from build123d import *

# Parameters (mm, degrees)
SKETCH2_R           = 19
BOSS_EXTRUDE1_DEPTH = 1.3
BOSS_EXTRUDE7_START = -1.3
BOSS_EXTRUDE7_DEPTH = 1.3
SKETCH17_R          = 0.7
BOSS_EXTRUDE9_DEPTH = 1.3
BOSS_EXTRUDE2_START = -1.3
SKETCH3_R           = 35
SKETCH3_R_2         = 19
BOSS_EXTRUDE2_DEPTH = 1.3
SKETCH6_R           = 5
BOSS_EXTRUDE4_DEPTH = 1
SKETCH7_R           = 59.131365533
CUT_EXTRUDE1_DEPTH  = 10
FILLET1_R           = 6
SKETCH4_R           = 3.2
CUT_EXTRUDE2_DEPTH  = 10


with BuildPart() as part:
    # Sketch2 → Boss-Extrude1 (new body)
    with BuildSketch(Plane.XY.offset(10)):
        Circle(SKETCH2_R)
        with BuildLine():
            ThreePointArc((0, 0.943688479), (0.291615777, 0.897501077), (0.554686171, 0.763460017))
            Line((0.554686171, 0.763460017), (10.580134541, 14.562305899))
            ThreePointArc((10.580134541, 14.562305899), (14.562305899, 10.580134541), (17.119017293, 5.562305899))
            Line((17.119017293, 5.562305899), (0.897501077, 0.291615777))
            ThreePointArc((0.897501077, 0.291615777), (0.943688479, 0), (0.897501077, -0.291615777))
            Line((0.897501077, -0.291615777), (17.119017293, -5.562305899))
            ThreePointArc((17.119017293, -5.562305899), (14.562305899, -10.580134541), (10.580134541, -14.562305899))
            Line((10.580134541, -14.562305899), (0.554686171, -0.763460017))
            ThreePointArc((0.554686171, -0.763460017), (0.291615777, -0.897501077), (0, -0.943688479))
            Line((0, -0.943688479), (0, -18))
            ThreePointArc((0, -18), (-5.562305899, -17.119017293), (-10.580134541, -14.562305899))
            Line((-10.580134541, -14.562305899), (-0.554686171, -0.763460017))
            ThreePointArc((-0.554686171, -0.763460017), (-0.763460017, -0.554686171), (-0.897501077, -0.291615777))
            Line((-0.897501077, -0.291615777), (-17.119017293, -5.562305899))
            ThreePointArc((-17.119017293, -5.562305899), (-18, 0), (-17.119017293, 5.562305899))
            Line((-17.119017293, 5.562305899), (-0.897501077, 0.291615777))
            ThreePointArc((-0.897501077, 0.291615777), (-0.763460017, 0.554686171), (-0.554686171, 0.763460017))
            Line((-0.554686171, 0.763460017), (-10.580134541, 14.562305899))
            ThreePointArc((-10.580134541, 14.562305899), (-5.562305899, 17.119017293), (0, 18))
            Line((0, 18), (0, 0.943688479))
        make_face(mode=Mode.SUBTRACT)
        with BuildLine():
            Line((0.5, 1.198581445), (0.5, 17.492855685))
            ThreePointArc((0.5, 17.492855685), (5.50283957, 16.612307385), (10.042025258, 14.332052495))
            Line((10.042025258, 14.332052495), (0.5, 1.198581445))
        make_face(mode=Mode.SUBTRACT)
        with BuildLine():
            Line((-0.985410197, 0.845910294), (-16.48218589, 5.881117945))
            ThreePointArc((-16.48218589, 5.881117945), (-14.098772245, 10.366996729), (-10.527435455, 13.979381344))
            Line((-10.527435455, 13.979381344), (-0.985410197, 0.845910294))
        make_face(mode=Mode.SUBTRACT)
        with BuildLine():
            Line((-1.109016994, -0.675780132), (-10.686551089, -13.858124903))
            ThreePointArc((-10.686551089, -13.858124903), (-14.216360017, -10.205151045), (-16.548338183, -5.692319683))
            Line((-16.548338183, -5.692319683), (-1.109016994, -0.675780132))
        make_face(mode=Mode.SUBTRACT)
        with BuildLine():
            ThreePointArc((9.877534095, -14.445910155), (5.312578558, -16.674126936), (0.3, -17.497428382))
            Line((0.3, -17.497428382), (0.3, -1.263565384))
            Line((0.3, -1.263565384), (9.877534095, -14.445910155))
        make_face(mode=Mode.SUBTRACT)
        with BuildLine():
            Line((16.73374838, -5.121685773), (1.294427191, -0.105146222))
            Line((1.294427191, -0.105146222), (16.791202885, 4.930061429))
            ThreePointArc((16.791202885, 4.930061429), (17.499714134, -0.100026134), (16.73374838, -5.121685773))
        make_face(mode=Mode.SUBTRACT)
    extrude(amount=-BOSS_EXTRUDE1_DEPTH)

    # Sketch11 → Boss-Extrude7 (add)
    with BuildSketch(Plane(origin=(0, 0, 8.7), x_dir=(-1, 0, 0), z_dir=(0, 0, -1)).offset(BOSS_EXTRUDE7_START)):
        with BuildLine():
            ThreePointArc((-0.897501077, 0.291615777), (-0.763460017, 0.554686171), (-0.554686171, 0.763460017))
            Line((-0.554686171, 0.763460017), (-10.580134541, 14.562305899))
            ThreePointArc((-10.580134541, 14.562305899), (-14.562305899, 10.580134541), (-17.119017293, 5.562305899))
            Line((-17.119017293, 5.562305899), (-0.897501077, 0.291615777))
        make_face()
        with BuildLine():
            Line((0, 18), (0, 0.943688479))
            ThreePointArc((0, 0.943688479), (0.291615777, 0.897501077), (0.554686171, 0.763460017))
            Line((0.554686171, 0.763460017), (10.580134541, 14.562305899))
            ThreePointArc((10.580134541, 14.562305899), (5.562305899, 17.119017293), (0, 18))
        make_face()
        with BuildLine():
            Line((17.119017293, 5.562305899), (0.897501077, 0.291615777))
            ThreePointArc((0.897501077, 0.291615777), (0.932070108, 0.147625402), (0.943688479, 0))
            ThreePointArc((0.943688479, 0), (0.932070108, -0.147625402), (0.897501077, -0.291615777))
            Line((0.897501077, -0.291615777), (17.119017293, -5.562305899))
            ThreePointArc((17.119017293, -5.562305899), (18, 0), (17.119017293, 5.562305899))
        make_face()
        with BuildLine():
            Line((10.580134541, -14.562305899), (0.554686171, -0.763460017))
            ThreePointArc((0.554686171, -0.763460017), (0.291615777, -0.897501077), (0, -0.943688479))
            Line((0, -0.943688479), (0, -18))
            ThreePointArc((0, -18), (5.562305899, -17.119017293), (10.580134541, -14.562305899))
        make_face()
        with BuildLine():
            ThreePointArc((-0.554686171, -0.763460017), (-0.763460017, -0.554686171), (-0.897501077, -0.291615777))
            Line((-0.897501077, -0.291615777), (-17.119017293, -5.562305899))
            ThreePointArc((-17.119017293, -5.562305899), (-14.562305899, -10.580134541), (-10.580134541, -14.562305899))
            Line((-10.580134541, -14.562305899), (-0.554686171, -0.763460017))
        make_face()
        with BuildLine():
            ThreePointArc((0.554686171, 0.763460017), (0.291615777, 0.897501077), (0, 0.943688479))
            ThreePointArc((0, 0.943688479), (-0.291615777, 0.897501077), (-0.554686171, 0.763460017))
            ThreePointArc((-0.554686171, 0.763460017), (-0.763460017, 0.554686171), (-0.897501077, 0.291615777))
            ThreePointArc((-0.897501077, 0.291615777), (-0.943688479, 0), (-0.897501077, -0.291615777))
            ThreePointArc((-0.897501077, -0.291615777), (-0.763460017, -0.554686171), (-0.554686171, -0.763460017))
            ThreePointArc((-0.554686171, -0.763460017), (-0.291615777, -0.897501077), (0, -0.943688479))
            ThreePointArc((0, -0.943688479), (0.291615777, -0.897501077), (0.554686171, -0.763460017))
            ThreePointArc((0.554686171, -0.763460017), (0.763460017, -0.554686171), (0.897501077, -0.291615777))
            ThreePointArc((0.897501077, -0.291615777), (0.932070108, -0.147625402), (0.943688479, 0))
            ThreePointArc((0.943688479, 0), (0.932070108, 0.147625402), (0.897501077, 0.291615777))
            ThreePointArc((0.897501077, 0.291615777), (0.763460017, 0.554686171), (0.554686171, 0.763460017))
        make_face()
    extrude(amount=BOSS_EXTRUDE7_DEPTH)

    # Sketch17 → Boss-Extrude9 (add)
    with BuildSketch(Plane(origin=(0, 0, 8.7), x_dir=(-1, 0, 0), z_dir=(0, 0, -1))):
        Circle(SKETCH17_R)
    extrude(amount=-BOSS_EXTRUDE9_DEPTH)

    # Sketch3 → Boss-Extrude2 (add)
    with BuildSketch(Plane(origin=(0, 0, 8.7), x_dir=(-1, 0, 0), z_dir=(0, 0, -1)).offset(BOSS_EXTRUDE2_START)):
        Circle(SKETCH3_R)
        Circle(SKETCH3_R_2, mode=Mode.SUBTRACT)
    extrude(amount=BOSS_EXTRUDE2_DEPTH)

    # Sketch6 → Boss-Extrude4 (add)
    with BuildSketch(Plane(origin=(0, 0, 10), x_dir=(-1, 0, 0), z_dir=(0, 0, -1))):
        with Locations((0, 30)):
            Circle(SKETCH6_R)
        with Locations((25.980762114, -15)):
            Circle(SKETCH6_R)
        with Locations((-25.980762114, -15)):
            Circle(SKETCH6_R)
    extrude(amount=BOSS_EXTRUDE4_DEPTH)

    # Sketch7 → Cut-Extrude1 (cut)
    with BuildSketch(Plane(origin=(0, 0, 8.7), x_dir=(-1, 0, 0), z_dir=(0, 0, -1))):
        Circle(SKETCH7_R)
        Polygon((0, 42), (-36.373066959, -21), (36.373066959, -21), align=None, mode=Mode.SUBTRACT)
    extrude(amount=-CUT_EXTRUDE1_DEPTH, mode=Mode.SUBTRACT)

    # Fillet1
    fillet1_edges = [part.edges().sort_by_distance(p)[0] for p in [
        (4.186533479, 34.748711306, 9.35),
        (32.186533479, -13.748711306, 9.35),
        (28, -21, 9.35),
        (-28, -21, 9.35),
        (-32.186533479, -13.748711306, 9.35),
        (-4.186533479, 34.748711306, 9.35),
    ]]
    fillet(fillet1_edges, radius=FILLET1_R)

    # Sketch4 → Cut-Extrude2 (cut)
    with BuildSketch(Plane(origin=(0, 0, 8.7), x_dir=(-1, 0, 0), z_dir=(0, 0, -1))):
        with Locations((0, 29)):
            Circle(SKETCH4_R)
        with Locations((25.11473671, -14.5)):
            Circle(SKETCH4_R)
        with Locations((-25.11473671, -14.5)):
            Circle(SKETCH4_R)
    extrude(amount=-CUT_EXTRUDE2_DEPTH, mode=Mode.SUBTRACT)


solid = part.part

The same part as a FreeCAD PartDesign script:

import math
import FreeCAD as App
import Part
import Sketcher
from FreeCAD import Vector
Q = App.Units.Quantity


def edges_at(feature, points):
    """Names of the edges that pass closest to the given points."""
    edges = feature.Shape.Edges
    near = lambda p: min(range(len(edges)), key=lambda i: edges[i].distToShape(Part.Vertex(*p))[0])
    return sorted({f"Edge{near(p) + 1}" for p in points})

doc = App.newDocument("Part")
body = doc.addObject("PartDesign::Body", "Body")

# Sketch on XY plane
sketch1 = doc.addObject("Sketcher::SketchObject", "Sketch")
body.addObject(sketch1)
sketch1.AttachmentSupport = (doc.XY_Plane, [""])
sketch1.MapMode = "FlatFace"
sketch1.AttachmentOffset = App.Placement(Vector(0, 0, 10), App.Rotation())
sketch1.addGeometry([
    Part.Circle(Vector(0, 0, 0), Vector(0, 0, 1), 19),  # 0
    Part.LineSegment(Vector(-16.5, -5.7, 0), Vector(-1.1, -0.7, 0)),  # 1
    Part.LineSegment(Vector(-1.1, -0.7, 0), Vector(-10.7, -13.9, 0)),  # 2
    Part.ArcOfCircle(Part.Circle(Vector(0, 0, 0), Vector(0, 0, 1), 17.5), math.radians(-161), math.radians(-128)),  # 3
    Part.LineSegment(Vector(0.3, -1.3, 0), Vector(9.9, -14.4, 0)),  # 4
    Part.ArcOfCircle(Part.Circle(Vector(0, 0, 0), Vector(0, 0, 1), 17.5), math.radians(-89), math.radians(-56)),  # 5
    Part.LineSegment(Vector(0.3, -17.5, 0), Vector(0.3, -1.3, 0)),  # 6
    Part.ArcOfCircle(Part.Circle(Vector(0, 0, 0), Vector(0, 0, 1), 17.5), math.radians(-17), math.radians(16)),  # 7
    Part.LineSegment(Vector(16.7, -5.1, 0), Vector(1.3, -0.1, 0)),  # 8
    Part.LineSegment(Vector(1.3, -0.1, 0), Vector(16.8, 4.9, 0)),  # 9
    Part.LineSegment(Vector(0, 18, 0), Vector(0, 0.9, 0)),  # 10
    Part.ArcOfCircle(Part.Circle(Vector(0, 0, 0), Vector(0, 0, 1), 0.9), math.radians(54), math.radians(90)),  # 11
    Part.LineSegment(Vector(0.6, 0.8, 0), Vector(10.6, 14.6, 0)),  # 12
    Part.ArcOfCircle(Part.Circle(Vector(0, 0, 0), Vector(0, 0, 1), 18), math.radians(18), math.radians(54)),  # 13
    Part.LineSegment(Vector(17.1, 5.6, 0), Vector(0.9, 0.3, 0)),  # 14
    Part.ArcOfCircle(Part.Circle(Vector(0, 0, 0), Vector(0, 0, 1), 0.9), math.radians(-18), math.radians(18)),  # 15
    Part.LineSegment(Vector(0.9, -0.3, 0), Vector(17.1, -5.6, 0)),  # 16
    Part.ArcOfCircle(Part.Circle(Vector(0, 0, 0), Vector(0, 0, 1), 18), math.radians(-54), math.radians(-18)),  # 17
    Part.LineSegment(Vector(10.6, -14.6, 0), Vector(0.6, -0.8, 0)),  # 18
    Part.ArcOfCircle(Part.Circle(Vector(0, 0, 0), Vector(0, 0, 1), 0.9), math.radians(-90), math.radians(-54)),  # 19
    Part.LineSegment(Vector(0, -0.9, 0), Vector(0, -18, 0)),  # 20
    Part.ArcOfCircle(Part.Circle(Vector(0, 0, 0), Vector(0, 0, 1), 18), math.radians(-126), math.radians(-90)),  # 21
    Part.LineSegment(Vector(-10.6, -14.6, 0), Vector(-0.6, -0.8, 0)),  # 22
    Part.ArcOfCircle(Part.Circle(Vector(0, 0, 0), Vector(0, 0, 1), 0.9), math.radians(-162), math.radians(-126)),  # 23
    Part.LineSegment(Vector(-0.9, -0.3, 0), Vector(-17.1, -5.6, 0)),  # 24
    Part.ArcOfCircle(Part.Circle(Vector(0, 0, 0), Vector(0, 0, 1), 18), math.radians(162), math.radians(198)),  # 25
    Part.LineSegment(Vector(-17.1, 5.6, 0), Vector(-0.9, 0.3, 0)),  # 26
    Part.ArcOfCircle(Part.Circle(Vector(0, 0, 0), Vector(0, 0, 1), 0.9), math.radians(126), math.radians(162)),  # 27
    Part.LineSegment(Vector(-0.6, 0.8, 0), Vector(-10.6, 14.6, 0)),  # 28
    Part.ArcOfCircle(Part.Circle(Vector(0, 0, 0), Vector(0, 0, 1), 18), math.radians(90), math.radians(126)),  # 29
    Part.LineSegment(Vector(-10.5, 14, 0), Vector(-1, 0.8, 0)),  # 30
    Part.LineSegment(Vector(-1, 0.8, 0), Vector(-16.5, 5.9, 0)),  # 31
    Part.ArcOfCircle(Part.Circle(Vector(0, 0, 0), Vector(0, 0, 1), 17.5), math.radians(127), math.radians(160)),  # 32
    Part.LineSegment(Vector(10, 14.3, 0), Vector(0.5, 1.2, 0)),  # 33
    Part.LineSegment(Vector(0.5, 1.2, 0), Vector(0.5, 17.5, 0)),  # 34
    Part.ArcOfCircle(Part.Circle(Vector(0, 0, 0), Vector(0, 0, 1), 17.5), math.radians(55), math.radians(88)),  # 35
], False)
sketch1.addConstraint([
    Sketcher.Constraint("Coincident", 1, 2, 2, 1),
    Sketcher.Constraint("Coincident", 2, 2, 3, 2),
    Sketcher.Constraint("Coincident", 3, 1, 1, 1),
    Sketcher.Constraint("Coincident", 4, 2, 5, 2),
    Sketcher.Constraint("Coincident", 5, 1, 6, 1),
    Sketcher.Constraint("Coincident", 6, 2, 4, 1),
    Sketcher.Constraint("Coincident", 7, 1, 8, 1),
    Sketcher.Constraint("Coincident", 8, 2, 9, 1),
    Sketcher.Constraint("Coincident", 9, 2, 7, 2),
    Sketcher.Constraint("Coincident", 10, 2, 11, 2),
    Sketcher.Constraint("Coincident", 11, 1, 12, 1),
    Sketcher.Constraint("Coincident", 12, 2, 13, 2),
    Sketcher.Constraint("Coincident", 13, 1, 14, 1),
    Sketcher.Constraint("Coincident", 14, 2, 15, 2),
    Sketcher.Constraint("Coincident", 15, 1, 16, 1),
    Sketcher.Constraint("Coincident", 16, 2, 17, 2),
    Sketcher.Constraint("Coincident", 17, 1, 18, 1),
    Sketcher.Constraint("Coincident", 18, 2, 19, 2),
    Sketcher.Constraint("Coincident", 19, 1, 20, 1),
    Sketcher.Constraint("Coincident", 20, 2, 21, 2),
    Sketcher.Constraint("Coincident", 21, 1, 22, 1),
    Sketcher.Constraint("Coincident", 22, 2, 23, 2),
    Sketcher.Constraint("Coincident", 23, 1, 24, 1),
    Sketcher.Constraint("Coincident", 24, 2, 25, 2),
    Sketcher.Constraint("Coincident", 25, 1, 26, 1),
    Sketcher.Constraint("Coincident", 26, 2, 27, 2),
    Sketcher.Constraint("Coincident", 27, 1, 28, 1),
    Sketcher.Constraint("Coincident", 28, 2, 29, 2),
    Sketcher.Constraint("Coincident", 29, 1, 10, 1),
    Sketcher.Constraint("Coincident", 30, 2, 31, 1),
    Sketcher.Constraint("Coincident", 31, 2, 32, 2),
    Sketcher.Constraint("Coincident", 32, 1, 30, 1),
    Sketcher.Constraint("Coincident", 33, 2, 34, 1),
    Sketcher.Constraint("Coincident", 34, 2, 35, 2),
    Sketcher.Constraint("Coincident", 35, 1, 33, 1),
    Sketcher.Constraint("Vertical", 6),
    Sketcher.Constraint("Vertical", 10),
    Sketcher.Constraint("Vertical", 20),
    Sketcher.Constraint("Vertical", 34),
    Sketcher.Constraint("Coincident", 0, 3, -1, 1),
    Sketcher.Constraint("Coincident", 3, 3, -1, 1),
    Sketcher.Constraint("Coincident", 5, 3, -1, 1),
    Sketcher.Constraint("Coincident", 7, 3, -1, 1),
    Sketcher.Constraint("Coincident", 11, 3, -1, 1),
    Sketcher.Constraint("Coincident", 13, 3, -1, 1),
    Sketcher.Constraint("Coincident", 15, 3, -1, 1),
    Sketcher.Constraint("Coincident", 17, 3, -1, 1),
    Sketcher.Constraint("Coincident", 19, 3, -1, 1),
    Sketcher.Constraint("Coincident", 21, 3, -1, 1),
    Sketcher.Constraint("Coincident", 23, 3, -1, 1),
    Sketcher.Constraint("Coincident", 25, 3, -1, 1),
    Sketcher.Constraint("Coincident", 27, 3, -1, 1),
    Sketcher.Constraint("Coincident", 29, 3, -1, 1),
    Sketcher.Constraint("Coincident", 32, 3, -1, 1),
    Sketcher.Constraint("Coincident", 35, 3, -1, 1),
    Sketcher.Constraint("Equal", 3, 5),
    Sketcher.Constraint("Equal", 5, 7),
    Sketcher.Constraint("Equal", 11, 15),
    Sketcher.Constraint("Equal", 13, 17),
    Sketcher.Constraint("Equal", 15, 19),
    Sketcher.Constraint("Equal", 17, 21),
    Sketcher.Constraint("Equal", 19, 23),
    Sketcher.Constraint("Equal", 21, 25),
    Sketcher.Constraint("Equal", 23, 27),
    Sketcher.Constraint("Equal", 25, 29),
    Sketcher.Constraint("Equal", 7, 32),
    Sketcher.Constraint("Equal", 32, 35),
    Sketcher.Constraint("PointOnObject", 10, 2, -2),
    Sketcher.Constraint("PointOnObject", 19, 1, -2),
    Sketcher.Constraint("Parallel", 1, 9),
    Sketcher.Constraint("Parallel", 2, 12),
    Sketcher.Constraint("Parallel", 9, 14),
    Sketcher.Constraint("Parallel", 8, 16),
    Sketcher.Constraint("Parallel", 4, 18),
    Sketcher.Constraint("Parallel", 12, 22),
    Sketcher.Constraint("Parallel", 14, 24),
    Sketcher.Constraint("Parallel", 16, 26),
    Sketcher.Constraint("Parallel", 18, 28),
    Sketcher.Constraint("Parallel", 28, 30),
    Sketcher.Constraint("Parallel", 26, 31),
    Sketcher.Constraint("Parallel", 22, 33),
    Sketcher.Constraint("Horizontal", 17, 1, 21, 1),
    Sketcher.Constraint("Horizontal", 18, 2, 22, 2),
    Sketcher.Constraint("Horizontal", 15, 1, 23, 1),
    Sketcher.Constraint("Horizontal", 16, 2, 24, 2),
    Sketcher.Constraint("Horizontal", 13, 1, 25, 1),
    Sketcher.Constraint("Horizontal", 11, 1, 27, 1),
    Sketcher.Constraint("Vertical", 14, 2, 15, 1),
    Sketcher.Constraint("Vertical", 12, 2, 17, 1),
    Sketcher.Constraint("Equal", 2, 4),
    Sketcher.Constraint("Equal", 1, 8),
    Sketcher.Constraint("Equal", 4, 9),
    Sketcher.Constraint("Equal", 8, 30),
    Sketcher.Constraint("Equal", 9, 31),
    Sketcher.Constraint("Equal", 30, 33),
    Sketcher.Constraint("Diameter", 0, 38.0),
    Sketcher.Constraint("Radius", 13, 18.0),
    Sketcher.Constraint("Radius", 3, 17.5),
    Sketcher.Constraint("Angle", 1, Q("18 deg")),
    Sketcher.Constraint("Angle", 2, Q("-126 deg")),
    Sketcher.Constraint("DistanceY", 13, 1, 12, 2, 9.0),
    Sketcher.Constraint("DistanceX", -1, 1, 5, 1, 0.3),
    Sketcher.Constraint("DistanceX", -1, 1, 33, 2, 0.5),
    Sketcher.Constraint("Radius", 11, 0.943688),
    Sketcher.Constraint("DistanceX", 24, 2, 1, 2, 16.01),
    Sketcher.Constraint("DistanceX", -1, 1, 14, 2, 0.897501),
    Sketcher.Constraint("DistanceX", 4, 2, 17, 1, 0.7026),
])
pad1 = doc.addObject("PartDesign::Pad", "Pad")
body.addObject(pad1)
pad1.Profile = sketch1
pad1.Length = 1.3
pad1.Reversed = True

# Sketch on XY plane
sketch2 = doc.addObject("Sketcher::SketchObject", "Sketch001")
body.addObject(sketch2)
sketch2.AttachmentSupport = (doc.XY_Plane, [""])
sketch2.MapMode = "FlatFace"
sketch2.AttachmentOffset = App.Placement(Vector(0, 0, 10), App.Rotation())
sketch2.addGeometry([
    Part.LineSegment(Vector(0.6, 0.8, 0), Vector(10.6, 14.6, 0)),  # 0
    Part.ArcOfCircle(Part.Circle(Vector(0, 0, 0), Vector(0, 0, 1), 18), math.radians(18), math.radians(54)),  # 1
    Part.LineSegment(Vector(17.1, 5.6, 0), Vector(0.9, 0.3, 0)),  # 2
    Part.ArcOfCircle(Part.Circle(Vector(0, 0, 0), Vector(0, 0, 1), 0.9), math.radians(-18), math.radians(18)),  # 3
    Part.LineSegment(Vector(0.9, -0.3, 0), Vector(17.1, -5.6, 0)),  # 4
    Part.ArcOfCircle(Part.Circle(Vector(0, 0, 0), Vector(0, 0, 1), 18), math.radians(-54), math.radians(-18)),  # 5
    Part.LineSegment(Vector(10.6, -14.6, 0), Vector(0.6, -0.8, 0)),  # 6
    Part.ArcOfCircle(Part.Circle(Vector(0, 0, 0), Vector(0, 0, 1), 0.9), math.radians(-90), math.radians(-54)),  # 7
    Part.LineSegment(Vector(0, -0.9, 0), Vector(0, -18, 0)),  # 8
    Part.ArcOfCircle(Part.Circle(Vector(0, 0, 0), Vector(0, 0, 1), 18), math.radians(-126), math.radians(-90)),  # 9
    Part.LineSegment(Vector(-10.6, -14.6, 0), Vector(-0.6, -0.8, 0)),  # 10
    Part.ArcOfCircle(Part.Circle(Vector(0, 0, 0), Vector(0, 0, 1), 0.9), math.radians(-162), math.radians(-126)),  # 11
    Part.LineSegment(Vector(-0.9, -0.3, 0), Vector(-17.1, -5.6, 0)),  # 12
    Part.ArcOfCircle(Part.Circle(Vector(0, 0, 0), Vector(0, 0, 1), 18), math.radians(162), math.radians(198)),  # 13
    Part.LineSegment(Vector(-17.1, 5.6, 0), Vector(-0.9, 0.3, 0)),  # 14
    Part.ArcOfCircle(Part.Circle(Vector(0, 0, 0), Vector(0, 0, 1), 0.9), math.radians(126), math.radians(162)),  # 15
    Part.LineSegment(Vector(-0.6, 0.8, 0), Vector(-10.6, 14.6, 0)),  # 16
    Part.ArcOfCircle(Part.Circle(Vector(0, 0, 0), Vector(0, 0, 1), 18), math.radians(90), math.radians(126)),  # 17
    Part.LineSegment(Vector(0, 18, 0), Vector(0, 0.9, 0)),  # 18
    Part.ArcOfCircle(Part.Circle(Vector(0, 0, 0), Vector(0, 0, 1), 0.9), math.radians(54), math.radians(90)),  # 19
], False)
sketch2.addConstraint([
    Sketcher.Constraint("Coincident", 0, 2, 1, 2),
    Sketcher.Constraint("Coincident", 1, 1, 2, 1),
    Sketcher.Constraint("Coincident", 2, 2, 3, 2),
    Sketcher.Constraint("Coincident", 3, 1, 4, 1),
    Sketcher.Constraint("Coincident", 4, 2, 5, 2),
    Sketcher.Constraint("Coincident", 5, 1, 6, 1),
    Sketcher.Constraint("Coincident", 6, 2, 7, 2),
    Sketcher.Constraint("Coincident", 7, 1, 8, 1),
    Sketcher.Constraint("Coincident", 8, 2, 9, 2),
    Sketcher.Constraint("Coincident", 9, 1, 10, 1),
    Sketcher.Constraint("Coincident", 10, 2, 11, 2),
    Sketcher.Constraint("Coincident", 11, 1, 12, 1),
    Sketcher.Constraint("Coincident", 12, 2, 13, 2),
    Sketcher.Constraint("Coincident", 13, 1, 14, 1),
    Sketcher.Constraint("Coincident", 14, 2, 15, 2),
    Sketcher.Constraint("Coincident", 15, 1, 16, 1),
    Sketcher.Constraint("Coincident", 16, 2, 17, 2),
    Sketcher.Constraint("Coincident", 17, 1, 18, 1),
    Sketcher.Constraint("Coincident", 18, 2, 19, 2),
    Sketcher.Constraint("Coincident", 19, 1, 0, 1),
    Sketcher.Constraint("Vertical", 8),
    Sketcher.Constraint("Vertical", 18),
    Sketcher.Constraint("Coincident", 1, 3, -1, 1),
    Sketcher.Constraint("Coincident", 3, 3, -1, 1),
    Sketcher.Constraint("Coincident", 5, 3, -1, 1),
    Sketcher.Constraint("Coincident", 7, 3, -1, 1),
    Sketcher.Constraint("Coincident", 9, 3, -1, 1),
    Sketcher.Constraint("Coincident", 11, 3, -1, 1),
    Sketcher.Constraint("Coincident", 13, 3, -1, 1),
    Sketcher.Constraint("Coincident", 15, 3, -1, 1),
    Sketcher.Constraint("Coincident", 17, 3, -1, 1),
    Sketcher.Constraint("Coincident", 19, 3, -1, 1),
    Sketcher.Constraint("Equal", 1, 5),
    Sketcher.Constraint("Equal", 3, 7),
    Sketcher.Constraint("Equal", 5, 9),
    Sketcher.Constraint("Equal", 7, 11),
    Sketcher.Constraint("Equal", 9, 13),
    Sketcher.Constraint("Equal", 11, 15),
    Sketcher.Constraint("Equal", 13, 17),
    Sketcher.Constraint("Equal", 15, 19),
    Sketcher.Constraint("PointOnObject", 7, 1, -2),
    Sketcher.Constraint("PointOnObject", 17, 1, -2),
    Sketcher.Constraint("Parallel", 0, 10),
    Sketcher.Constraint("Parallel", 2, 12),
    Sketcher.Constraint("Parallel", 4, 14),
    Sketcher.Constraint("Parallel", 6, 16),
    Sketcher.Constraint("Horizontal", 5, 1, 9, 1),
    Sketcher.Constraint("Horizontal", 6, 2, 10, 2),
    Sketcher.Constraint("Horizontal", 3, 1, 11, 1),
    Sketcher.Constraint("Horizontal", 4, 2, 12, 2),
    Sketcher.Constraint("Horizontal", 1, 1, 13, 1),
    Sketcher.Constraint("Horizontal", 0, 2, 16, 2),
    Sketcher.Constraint("Vertical", 2, 2, 3, 1),
    Sketcher.Constraint("Vertical", 0, 2, 5, 1),
    Sketcher.Constraint("Radius", 1, 18.0),
    Sketcher.Constraint("Angle", 0, Q("54 deg")),
    Sketcher.Constraint("Angle", 2, Q("-162 deg")),
    Sketcher.Constraint("DistanceY", 1, 1, 0, 2, 9.0),
    Sketcher.Constraint("Radius", 3, 0.943688),
    Sketcher.Constraint("DistanceX", -1, 1, 2, 2, 0.897501),
])
pad2 = doc.addObject("PartDesign::Pad", "Pad001")
body.addObject(pad2)
pad2.Profile = sketch2
pad2.Length = 1.3
pad2.Reversed = True

# Sketch on XY plane
sketch3 = doc.addObject("Sketcher::SketchObject", "Sketch002")
body.addObject(sketch3)
sketch3.AttachmentSupport = (doc.XY_Plane, [""])
sketch3.MapMode = "FlatFace"
sketch3.AttachmentOffset = App.Placement(Vector(0, 0, 8.7), App.Rotation())
sketch3.addGeometry(Part.Circle(Vector(0, 0, 0), Vector(0, 0, 1), 0.7), False)
sketch3.addConstraint([
    Sketcher.Constraint("Coincident", 0, 3, -1, 1),
    Sketcher.Constraint("Diameter", 0, 1.4),
])
pad3 = doc.addObject("PartDesign::Pad", "Pad002")
body.addObject(pad3)
pad3.Profile = sketch3
pad3.Length = 1.3

# Sketch on XY plane
sketch4 = doc.addObject("Sketcher::SketchObject", "Sketch003")
body.addObject(sketch4)
sketch4.AttachmentSupport = (doc.XY_Plane, [""])
sketch4.MapMode = "FlatFace"
sketch4.AttachmentOffset = App.Placement(Vector(0, 0, 10), App.Rotation())
sketch4.addGeometry([
    Part.Circle(Vector(0, 0, 0), Vector(0, 0, 1), 35),
    Part.Circle(Vector(0, 0, 0), Vector(0, 0, 1), 19),
], False)
sketch4.addConstraint([
    Sketcher.Constraint("Coincident", 0, 3, -1, 1),
    Sketcher.Constraint("Coincident", 1, 3, -1, 1),
    Sketcher.Constraint("Diameter", 0, 70.0),
    Sketcher.Constraint("Diameter", 1, 38.0),
])
pad4 = doc.addObject("PartDesign::Pad", "Pad003")
body.addObject(pad4)
pad4.Profile = sketch4
pad4.Length = 1.3
pad4.Reversed = True

# Sketch on XY plane
sketch5 = doc.addObject("Sketcher::SketchObject", "Sketch004")
body.addObject(sketch5)
sketch5.AttachmentSupport = (doc.XY_Plane, [""])
sketch5.MapMode = "FlatFace"
sketch5.AttachmentOffset = App.Placement(Vector(0, 0, 10), App.Rotation())
sketch5.addGeometry([
    Part.Circle(Vector(0, 30, 0), Vector(0, 0, 1), 5),
    Part.Circle(Vector(-26, -15, 0), Vector(0, 0, 1), 5),
    Part.Circle(Vector(26, -15, 0), Vector(0, 0, 1), 5),
], False)
sketch5.addConstraint([
    Sketcher.Constraint("Equal", 0, 1),
    Sketcher.Constraint("Equal", 1, 2),
    Sketcher.Constraint("Symmetric", 1, 3, 2, 3, -2),
    Sketcher.Constraint("PointOnObject", 0, 3, -2),
    Sketcher.Constraint("Diameter", 0, 10.0),
    Sketcher.Constraint("DistanceY", -1, 1, 0, 3, 30.0),
    Sketcher.Constraint("DistanceY", 1, 3, -1, 1, 15.0),
    Sketcher.Constraint("DistanceX", 1, 3, -1, 1, 25.980762),
])
pad5 = doc.addObject("PartDesign::Pad", "Pad004")
body.addObject(pad5)
pad5.Profile = sketch5
pad5.Length = 1
pad5.Reversed = True

# Sketch on XY plane
sketch6 = doc.addObject("Sketcher::SketchObject", "Sketch005")
body.addObject(sketch6)
sketch6.AttachmentSupport = (doc.XY_Plane, [""])
sketch6.MapMode = "FlatFace"
sketch6.AttachmentOffset = App.Placement(Vector(0, 0, 8.7), App.Rotation())
sketch6.addGeometry([
    Part.Circle(Vector(0, 0, 0), Vector(0, 0, 1), 59),
    Part.LineSegment(Vector(36, -21, 0), Vector(0, 42, 0)),
    Part.LineSegment(Vector(0, 42, 0), Vector(-36, -21, 0)),
    Part.LineSegment(Vector(-36, -21, 0), Vector(36, -21, 0)),
], False)
sketch6.addConstraint([
    Sketcher.Constraint("Coincident", 1, 2, 2, 1),
    Sketcher.Constraint("Coincident", 2, 2, 3, 1),
    Sketcher.Constraint("Coincident", 3, 2, 1, 1),
    Sketcher.Constraint("Horizontal", 3),
    Sketcher.Constraint("Coincident", 0, 3, -1, 1),
    Sketcher.Constraint("PointOnObject", 1, 2, -2),
    Sketcher.Constraint("Equal", 1, 2),
    Sketcher.Constraint("Angle", 1, Q("120 deg")),
    Sketcher.Constraint("DistanceY", -1, 1, 1, 2, 42.0),
    Sketcher.Constraint("DistanceY", 2, 2, -1, 1, 21.0),
    Sketcher.Constraint("Diameter", 0, 118.262731),
])
pocket1 = doc.addObject("PartDesign::Pocket", "Pocket")
body.addObject(pocket1)
pocket1.Profile = sketch6
pocket1.Length = 10
pocket1.Reversed = True
doc.recompute()

fillet = doc.addObject("PartDesign::Fillet", "Fillet")
body.addObject(fillet)
fillet.Base = (pocket1, edges_at(pocket1, [
    (4.187, 34.749, 9.35),
    (32.187, -13.749, 9.35),
    (28, -21, 9.35),
    (-28, -21, 9.35),
    (-32.187, -13.749, 9.35),
    (-4.187, 34.749, 9.35),
]))
fillet.Radius = 6

# Sketch on XY plane
sketch7 = doc.addObject("Sketcher::SketchObject", "Sketch006")
body.addObject(sketch7)
sketch7.AttachmentSupport = (doc.XY_Plane, [""])
sketch7.MapMode = "FlatFace"
sketch7.AttachmentOffset = App.Placement(Vector(0, 0, 8.7), App.Rotation())
sketch7.addGeometry([
    Part.Circle(Vector(0, 29, 0), Vector(0, 0, 1), 3.2),
    Part.Circle(Vector(-25.1, -14.5, 0), Vector(0, 0, 1), 3.2),
    Part.Circle(Vector(25.1, -14.5, 0), Vector(0, 0, 1), 3.2),
], False)
sketch7.addConstraint([
    Sketcher.Constraint("Equal", 0, 1),
    Sketcher.Constraint("Equal", 1, 2),
    Sketcher.Constraint("Symmetric", 1, 3, 2, 3, -2),
    Sketcher.Constraint("PointOnObject", 0, 3, -2),
    Sketcher.Constraint("Diameter", 0, 6.4),
    Sketcher.Constraint("DistanceY", -1, 1, 0, 3, 29.0),
    Sketcher.Constraint("DistanceY", 1, 3, -1, 1, 14.5),
    Sketcher.Constraint("DistanceX", 1, 3, -1, 1, 25.114737),
])
pocket2 = doc.addObject("PartDesign::Pocket", "Pocket001")
body.addObject(pocket2)
pocket2.Profile = sketch7
pocket2.Length = 10
pocket2.Reversed = True

doc.recompute()
